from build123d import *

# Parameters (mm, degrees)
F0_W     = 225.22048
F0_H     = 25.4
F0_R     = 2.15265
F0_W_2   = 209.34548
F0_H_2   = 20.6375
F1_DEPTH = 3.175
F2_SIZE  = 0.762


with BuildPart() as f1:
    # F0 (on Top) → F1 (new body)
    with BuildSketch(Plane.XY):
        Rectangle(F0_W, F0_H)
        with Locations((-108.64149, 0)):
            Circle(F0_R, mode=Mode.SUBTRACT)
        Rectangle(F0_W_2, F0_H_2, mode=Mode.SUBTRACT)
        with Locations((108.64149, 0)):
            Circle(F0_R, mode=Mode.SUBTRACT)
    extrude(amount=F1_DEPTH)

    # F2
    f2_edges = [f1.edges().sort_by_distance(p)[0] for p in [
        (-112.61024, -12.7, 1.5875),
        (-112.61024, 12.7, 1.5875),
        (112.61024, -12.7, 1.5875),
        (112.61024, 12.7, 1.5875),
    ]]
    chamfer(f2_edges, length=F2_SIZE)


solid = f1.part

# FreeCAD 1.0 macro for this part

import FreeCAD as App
import Part
import Sketcher
from FreeCAD import Vector
Q = App.Units.Quantity


def edges_at(feature, points):
    """Names of the edges that pass closest to the given points."""
    edges = feature.Shape.Edges
    near = lambda p: min(range(len(edges)), key=lambda i: edges[i].distToShape(Part.Vertex(*p))[0])
    return sorted({f"Edge{near(p) + 1}" for p in points})


def add_polygon(sketch, points):
    """Adds a closed chain of lines whose ends are joined by coincident constraints."""
    first, n = sketch.GeometryCount, len(points)
    for a, b in zip(points, points[1:] + points[:1]):
        sketch.addGeometry(Part.LineSegment(App.Vector(*a, 0), App.Vector(*b, 0)), False)
    for i in range(n):
        sketch.addConstraint(Sketcher.Constraint("Coincident", first + i, 2, first + (i + 1) % n, 1))

doc = App.newDocument("Part")
body = doc.addObject("PartDesign::Body", "Body")

# Sketch on XY plane
sketch1 = body.newObject("Sketcher::SketchObject", "Sketch")
sketch1.AttachmentSupport = (doc.getObject("XY_Plane"), [""])
sketch1.MapMode = "FlatFace"
add_polygon(sketch1, [(-112.6, 12.7), (-112.6, -12.7), (112.6, -12.7), (112.6, 12.7)])  # lines 0-3
sketch1.addGeometry(Part.Circle(Vector(-108.6, 0, 0), Vector(0, 0, 1), 2.2), False)  # 4
add_polygon(sketch1, [(104.7, -10.3), (-104.7, -10.3), (-104.7, 10.3), (104.7, 10.3)])  # lines 5-8
sketch1.addGeometry(Part.Circle(Vector(108.6, 0, 0), Vector(0, 0, 1), 2.2), False)  # 9
sketch1.addConstraint([
    Sketcher.Constraint("Vertical", 0),
    Sketcher.Constraint("Horizontal", 1),
    Sketcher.Constraint("Vertical", 2),
    Sketcher.Constraint("Horizontal", 3),
    Sketcher.Constraint("Horizontal", 5),
    Sketcher.Constraint("Vertical", 6),
    Sketcher.Constraint("Horizontal", 7),
    Sketcher.Constraint("Vertical", 8),
    Sketcher.Constraint("Equal", 4, 9),
    Sketcher.Constraint("Symmetric", 4, 3, 9, 3, -1, 1),
    Sketcher.Constraint("Symmetric", 0, 2, 2, 2, -1, 1),
    Sketcher.Constraint("Symmetric", 5, 2, 7, 2, -1, 1),
    Sketcher.Constraint("PointOnObject", 4, 3, -1),
    Sketcher.Constraint("DistanceY", 0, 2, 0, 1, Q("1 in")),
    Sketcher.Constraint("Diameter", 4, Q("0.1695 in")),
    Sketcher.Constraint("DistanceY", 6, 1, 6, 2, Q("0.8125 in")),
    Sketcher.Constraint("DistanceX", 0, 2, 4, 3, Q("0.15625 in")),
    Sketcher.Constraint("DistanceX", 0, 2, 5, 2, Q("0.3125 in")),
    Sketcher.Constraint("DistanceX", 1, 1, 1, 2, Q("225.22048 mm")),
])
pad1 = body.newObject("PartDesign::Pad", "Pad")
pad1.Profile = sketch1
pad1.Length = Q("0.125 in")
doc.recompute()

chamfer = body.newObject("PartDesign::Chamfer", "Chamfer")
chamfer.Base = (pad1, edges_at(pad1, [
    (-112.61, -12.7, 1.587),
    (-112.61, 12.7, 1.587),
    (112.61, -12.7, 1.587),
    (112.61, 12.7, 1.587),
]))
chamfer.Size = Q("0.03 in")

doc.recompute()
